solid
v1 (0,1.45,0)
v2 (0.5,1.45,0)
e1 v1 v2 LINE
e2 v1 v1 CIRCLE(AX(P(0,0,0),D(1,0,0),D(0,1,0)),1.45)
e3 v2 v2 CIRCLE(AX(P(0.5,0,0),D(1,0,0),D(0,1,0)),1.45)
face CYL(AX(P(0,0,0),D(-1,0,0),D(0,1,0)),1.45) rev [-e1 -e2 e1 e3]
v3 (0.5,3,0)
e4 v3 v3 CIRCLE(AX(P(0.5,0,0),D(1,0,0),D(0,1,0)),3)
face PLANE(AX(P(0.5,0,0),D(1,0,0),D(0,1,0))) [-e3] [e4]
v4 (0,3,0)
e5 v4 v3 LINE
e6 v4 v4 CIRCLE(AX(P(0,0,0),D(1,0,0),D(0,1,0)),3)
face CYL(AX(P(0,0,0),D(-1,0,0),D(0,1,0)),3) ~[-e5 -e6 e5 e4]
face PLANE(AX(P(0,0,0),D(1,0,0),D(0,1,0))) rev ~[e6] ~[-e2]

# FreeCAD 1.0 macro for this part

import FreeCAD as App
import Part
import Sketcher
from FreeCAD import Vector

doc = App.newDocument("Part")
body = doc.addObject("PartDesign::Body", "Body")

sketch1 = body.newObject("Sketcher::SketchObject", "Sketch")
sketch1.AttachmentSupport = (doc.getObject("YZ_Plane"), [""])
sketch1.MapMode = "FlatFace"
sketch1.addGeometry([
    Part.Circle(Vector(0, 0, 0), Vector(0, 0, 1), 3),
    Part.Circle(Vector(0, 0, 0), Vector(0, 0, 1), 1.45),
], False)
sketch1.addConstraint([
    Sketcher.Constraint("Coincident", 0, 3, -1, 1),
    Sketcher.Constraint("Coincident", 1, 3, -1, 1),
    Sketcher.Constraint("Diameter", 0, 6.0),
    Sketcher.Constraint("Diameter", 1, 2.9),
])
pad1 = body.newObject("PartDesign::Pad", "Pad")
pad1.Profile = sketch1
pad1.Length = 0.5

doc.recompute()
